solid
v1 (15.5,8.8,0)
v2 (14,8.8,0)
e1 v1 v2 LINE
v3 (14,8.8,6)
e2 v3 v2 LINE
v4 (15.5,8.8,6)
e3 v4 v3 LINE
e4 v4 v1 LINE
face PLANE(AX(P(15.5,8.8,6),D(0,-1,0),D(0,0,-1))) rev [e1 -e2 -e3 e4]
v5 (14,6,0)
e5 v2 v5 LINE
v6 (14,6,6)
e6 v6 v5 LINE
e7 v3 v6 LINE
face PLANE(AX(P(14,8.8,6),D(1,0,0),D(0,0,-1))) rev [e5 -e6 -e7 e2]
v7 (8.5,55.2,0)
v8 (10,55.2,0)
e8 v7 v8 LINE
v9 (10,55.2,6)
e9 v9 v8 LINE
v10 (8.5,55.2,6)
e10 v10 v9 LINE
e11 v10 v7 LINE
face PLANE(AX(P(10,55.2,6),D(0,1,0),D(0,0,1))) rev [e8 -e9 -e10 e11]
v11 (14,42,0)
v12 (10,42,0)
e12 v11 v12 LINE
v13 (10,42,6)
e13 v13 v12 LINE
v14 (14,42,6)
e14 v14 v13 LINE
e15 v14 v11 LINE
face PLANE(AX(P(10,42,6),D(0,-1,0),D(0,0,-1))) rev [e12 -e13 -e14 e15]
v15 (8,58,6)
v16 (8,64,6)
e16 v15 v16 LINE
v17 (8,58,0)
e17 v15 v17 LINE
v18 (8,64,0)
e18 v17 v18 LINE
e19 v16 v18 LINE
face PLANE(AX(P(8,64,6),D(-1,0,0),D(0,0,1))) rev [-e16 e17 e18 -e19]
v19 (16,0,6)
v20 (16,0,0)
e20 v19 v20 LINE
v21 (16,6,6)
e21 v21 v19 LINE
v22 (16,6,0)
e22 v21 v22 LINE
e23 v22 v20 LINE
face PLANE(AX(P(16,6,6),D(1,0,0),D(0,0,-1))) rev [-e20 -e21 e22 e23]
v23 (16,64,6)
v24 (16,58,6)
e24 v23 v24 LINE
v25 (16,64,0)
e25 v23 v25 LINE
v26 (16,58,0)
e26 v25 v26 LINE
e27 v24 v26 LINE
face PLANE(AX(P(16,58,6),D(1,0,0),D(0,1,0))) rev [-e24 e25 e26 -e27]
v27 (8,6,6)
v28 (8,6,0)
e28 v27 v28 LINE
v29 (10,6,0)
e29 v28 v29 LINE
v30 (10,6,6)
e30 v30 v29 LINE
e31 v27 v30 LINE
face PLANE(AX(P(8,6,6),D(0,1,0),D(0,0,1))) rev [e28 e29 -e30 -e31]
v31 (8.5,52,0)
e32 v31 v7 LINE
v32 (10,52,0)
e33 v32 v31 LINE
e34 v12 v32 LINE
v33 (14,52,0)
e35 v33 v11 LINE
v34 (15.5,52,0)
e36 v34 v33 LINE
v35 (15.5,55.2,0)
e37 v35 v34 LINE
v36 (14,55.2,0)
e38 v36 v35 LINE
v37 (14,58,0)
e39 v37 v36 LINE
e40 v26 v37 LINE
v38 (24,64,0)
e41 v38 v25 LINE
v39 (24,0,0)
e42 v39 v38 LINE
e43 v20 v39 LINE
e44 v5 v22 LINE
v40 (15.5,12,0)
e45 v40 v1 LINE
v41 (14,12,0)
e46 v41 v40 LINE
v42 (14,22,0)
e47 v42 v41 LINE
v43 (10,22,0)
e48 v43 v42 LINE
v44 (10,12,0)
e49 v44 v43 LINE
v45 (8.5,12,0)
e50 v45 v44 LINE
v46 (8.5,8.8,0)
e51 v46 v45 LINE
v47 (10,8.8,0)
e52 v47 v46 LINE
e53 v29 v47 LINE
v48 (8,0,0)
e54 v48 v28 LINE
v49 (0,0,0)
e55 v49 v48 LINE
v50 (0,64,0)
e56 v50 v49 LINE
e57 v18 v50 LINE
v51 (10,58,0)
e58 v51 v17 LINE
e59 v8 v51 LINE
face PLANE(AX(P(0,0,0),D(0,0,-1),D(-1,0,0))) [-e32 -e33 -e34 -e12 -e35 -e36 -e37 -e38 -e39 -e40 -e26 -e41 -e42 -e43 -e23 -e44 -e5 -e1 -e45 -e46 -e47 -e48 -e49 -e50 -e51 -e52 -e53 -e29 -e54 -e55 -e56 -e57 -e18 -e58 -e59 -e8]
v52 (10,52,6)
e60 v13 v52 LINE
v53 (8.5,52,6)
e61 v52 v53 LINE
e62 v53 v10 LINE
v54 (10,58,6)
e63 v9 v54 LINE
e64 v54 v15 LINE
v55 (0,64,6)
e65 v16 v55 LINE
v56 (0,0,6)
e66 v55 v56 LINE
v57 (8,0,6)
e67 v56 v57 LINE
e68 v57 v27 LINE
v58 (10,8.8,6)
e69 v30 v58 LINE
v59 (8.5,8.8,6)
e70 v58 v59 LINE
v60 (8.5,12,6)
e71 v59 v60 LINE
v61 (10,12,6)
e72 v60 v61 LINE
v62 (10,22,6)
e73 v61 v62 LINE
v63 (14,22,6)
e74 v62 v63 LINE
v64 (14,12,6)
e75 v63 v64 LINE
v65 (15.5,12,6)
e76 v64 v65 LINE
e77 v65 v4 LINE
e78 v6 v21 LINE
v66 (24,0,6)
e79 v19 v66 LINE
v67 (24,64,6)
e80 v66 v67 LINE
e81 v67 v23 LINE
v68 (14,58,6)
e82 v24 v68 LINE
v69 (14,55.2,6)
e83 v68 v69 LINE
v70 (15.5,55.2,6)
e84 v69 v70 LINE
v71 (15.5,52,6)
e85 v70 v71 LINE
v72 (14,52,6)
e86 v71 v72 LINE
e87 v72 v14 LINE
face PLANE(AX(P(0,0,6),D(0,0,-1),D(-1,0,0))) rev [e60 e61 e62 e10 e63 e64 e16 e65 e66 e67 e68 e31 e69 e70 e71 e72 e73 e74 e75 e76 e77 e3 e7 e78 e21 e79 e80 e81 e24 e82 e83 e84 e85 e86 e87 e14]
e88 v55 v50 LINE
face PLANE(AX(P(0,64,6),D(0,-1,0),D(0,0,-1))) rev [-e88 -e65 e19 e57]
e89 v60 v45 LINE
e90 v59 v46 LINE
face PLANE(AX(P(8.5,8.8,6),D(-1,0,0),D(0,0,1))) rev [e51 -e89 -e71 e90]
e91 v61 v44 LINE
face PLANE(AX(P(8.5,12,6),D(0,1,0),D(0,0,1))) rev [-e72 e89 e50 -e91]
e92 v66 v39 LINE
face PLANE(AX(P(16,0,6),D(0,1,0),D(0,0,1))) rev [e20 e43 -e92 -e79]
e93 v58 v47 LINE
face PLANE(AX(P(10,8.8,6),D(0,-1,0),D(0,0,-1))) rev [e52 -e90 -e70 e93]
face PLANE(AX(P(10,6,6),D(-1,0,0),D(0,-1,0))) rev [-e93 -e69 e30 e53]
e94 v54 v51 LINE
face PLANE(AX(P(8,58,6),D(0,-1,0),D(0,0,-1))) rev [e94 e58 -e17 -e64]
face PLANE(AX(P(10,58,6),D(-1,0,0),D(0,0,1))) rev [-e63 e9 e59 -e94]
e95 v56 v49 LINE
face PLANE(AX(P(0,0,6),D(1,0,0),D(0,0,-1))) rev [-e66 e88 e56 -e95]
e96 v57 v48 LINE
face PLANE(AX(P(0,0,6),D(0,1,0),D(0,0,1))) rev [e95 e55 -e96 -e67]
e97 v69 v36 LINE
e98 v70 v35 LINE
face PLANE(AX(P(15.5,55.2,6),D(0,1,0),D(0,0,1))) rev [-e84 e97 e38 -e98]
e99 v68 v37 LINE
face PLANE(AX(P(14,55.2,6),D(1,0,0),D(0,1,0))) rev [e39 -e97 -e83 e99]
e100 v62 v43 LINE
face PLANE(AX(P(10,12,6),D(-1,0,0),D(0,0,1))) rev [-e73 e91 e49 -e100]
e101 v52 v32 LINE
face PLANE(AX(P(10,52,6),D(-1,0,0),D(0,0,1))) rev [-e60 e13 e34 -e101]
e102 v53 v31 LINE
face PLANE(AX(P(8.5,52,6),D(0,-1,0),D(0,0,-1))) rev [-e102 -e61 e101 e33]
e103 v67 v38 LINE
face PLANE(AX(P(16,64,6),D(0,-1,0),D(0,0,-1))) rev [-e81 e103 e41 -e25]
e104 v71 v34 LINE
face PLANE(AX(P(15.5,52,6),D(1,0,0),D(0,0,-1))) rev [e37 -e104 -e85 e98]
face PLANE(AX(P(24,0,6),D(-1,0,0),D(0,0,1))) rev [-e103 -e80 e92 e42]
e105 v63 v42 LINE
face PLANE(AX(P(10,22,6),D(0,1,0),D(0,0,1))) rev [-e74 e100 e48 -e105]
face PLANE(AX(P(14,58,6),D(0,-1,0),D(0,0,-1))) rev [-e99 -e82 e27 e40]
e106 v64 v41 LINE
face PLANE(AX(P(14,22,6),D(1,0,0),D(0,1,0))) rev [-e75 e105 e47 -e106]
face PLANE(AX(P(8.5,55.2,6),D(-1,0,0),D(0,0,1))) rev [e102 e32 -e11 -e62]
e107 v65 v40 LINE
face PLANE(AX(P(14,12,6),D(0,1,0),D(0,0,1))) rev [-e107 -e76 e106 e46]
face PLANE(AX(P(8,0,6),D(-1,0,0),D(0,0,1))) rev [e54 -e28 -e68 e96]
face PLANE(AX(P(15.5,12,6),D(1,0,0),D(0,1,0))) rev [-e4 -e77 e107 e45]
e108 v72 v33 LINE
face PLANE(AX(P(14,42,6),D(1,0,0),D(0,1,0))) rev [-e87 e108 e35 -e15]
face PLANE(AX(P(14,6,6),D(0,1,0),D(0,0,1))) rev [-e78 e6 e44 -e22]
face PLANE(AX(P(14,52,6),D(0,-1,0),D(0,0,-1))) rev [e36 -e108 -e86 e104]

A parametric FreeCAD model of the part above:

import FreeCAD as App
import Part
import Sketcher
from FreeCAD import Vector
Q = App.Units.Quantity


def add_polygon(sketch, points):
    """Adds a closed chain of lines whose ends are joined by coincident constraints."""
    first, n = sketch.GeometryCount, len(points)
    for a, b in zip(points, points[1:] + points[:1]):
        sketch.addGeometry(Part.LineSegment(App.Vector(*a, 0), App.Vector(*b, 0)), False)
    for i in range(n):
        sketch.addConstraint(Sketcher.Constraint("Coincident", first + i, 2, first + (i + 1) % n, 1))

doc = App.newDocument("Part")
body = doc.addObject("PartDesign::Body", "Body")

sketch1 = doc.addObject("Sketcher::SketchObject", "Sketch")
body.addObject(sketch1)
sketch1.AttachmentSupport = (doc.XY_Plane, [""])
sketch1.MapMode = "FlatFace"
add_polygon(sketch1, [(8, 0), (8, 6), (10, 6), (10, 8.8), (8.5, 8.8), (8.5, 12), (10, 12), (10, 22), (14, 22), (14, 12), (15.5, 12), (15.5, 8.8), (14, 8.8), (14, 6), (16, 6), (16, 0), (24, 0), (24, 64), (16, 64), (16, 58), (14, 58), (14, 55.2), (15.5, 55.2), (15.5, 52), (14, 52), (14, 42), (10, 42), (10, 52), (8.5, 52), (8.5, 55.2), (10, 55.2), (10, 58), (8, 58), (8, 64), (0, 64), (0, 0)])
sketch1.addConstraint(Sketcher.Constraint("Vertical", 0))
sketch1.addConstraint(Sketcher.Constraint("Horizontal", 1))
sketch1.addConstraint(Sketcher.Constraint("Vertical", 2))
sketch1.addConstraint(Sketcher.Constraint("Horizontal", 3))
sketch1.addConstraint(Sketcher.Constraint("Vertical", 4))
sketch1.addConstraint(Sketcher.Constraint("Horizontal", 5))
sketch1.addConstraint(Sketcher.Constraint("Vertical", 6))
sketch1.addConstraint(Sketcher.Constraint("Horizontal", 7))
sketch1.addConstraint(Sketcher.Constraint("Vertical", 8))
sketch1.addConstraint(Sketcher.Constraint("Horizontal", 9))
sketch1.addConstraint(Sketcher.Constraint("Vertical", 10))
sketch1.addConstraint(Sketcher.Constraint("Horizontal", 11))
sketch1.addConstraint(Sketcher.Constraint("Vertical", 12))
sketch1.addConstraint(Sketcher.Constraint("Horizontal", 13))
sketch1.addConstraint(Sketcher.Constraint("Vertical", 14))
sketch1.addConstraint(Sketcher.Constraint("Horizontal", 15))
sketch1.addConstraint(Sketcher.Constraint("Vertical", 16))
sketch1.addConstraint(Sketcher.Constraint("Horizontal", 17))
sketch1.addConstraint(Sketcher.Constraint("Vertical", 18))
sketch1.addConstraint(Sketcher.Constraint("Horizontal", 19))
sketch1.addConstraint(Sketcher.Constraint("Vertical", 20))
sketch1.addConstraint(Sketcher.Constraint("Horizontal", 21))
sketch1.addConstraint(Sketcher.Constraint("Vertical", 22))
sketch1.addConstraint(Sketcher.Constraint("Horizontal", 23))
sketch1.addConstraint(Sketcher.Constraint("Vertical", 24))
sketch1.addConstraint(Sketcher.Constraint("Horizontal", 25))
sketch1.addConstraint(Sketcher.Constraint("Vertical", 26))
sketch1.addConstraint(Sketcher.Constraint("Horizontal", 27))
sketch1.addConstraint(Sketcher.Constraint("Vertical", 28))
sketch1.addConstraint(Sketcher.Constraint("Horizontal", 29))
sketch1.addConstraint(Sketcher.Constraint("Vertical", 30))
sketch1.addConstraint(Sketcher.Constraint("Horizontal", 31))
sketch1.addConstraint(Sketcher.Constraint("Vertical", 32))
sketch1.addConstraint(Sketcher.Constraint("Horizontal", 33))
sketch1.addConstraint(Sketcher.Constraint("Vertical", 34))
sketch1.addConstraint(Sketcher.Constraint("Horizontal", 35))
sketch1.addConstraint(Sketcher.Constraint("Coincident", 34, 2, -1, 1))
sketch1.addConstraint(Sketcher.Constraint("PointOnObject", 14, 2, -1))
sketch1.addConstraint(Sketcher.Constraint("Horizontal", 5, 2, 8, 2))
sketch1.addConstraint(Sketcher.Constraint("Horizontal", 3, 2, 10, 2))
sketch1.addConstraint(Sketcher.Constraint("Horizontal", 1, 2, 12, 2))
sketch1.addConstraint(Sketcher.Constraint("Horizontal", 23, 2, 26, 2))
sketch1.addConstraint(Sketcher.Constraint("Horizontal", 21, 2, 28, 2))
sketch1.addConstraint(Sketcher.Constraint("Horizontal", 19, 2, 30, 2))
sketch1.addConstraint(Sketcher.Constraint("Horizontal", 17, 2, 32, 2))
sketch1.addConstraint(Sketcher.Constraint("Vertical", 2, 2, 5, 2))
sketch1.addConstraint(Sketcher.Constraint("Vertical", 8, 2, 11, 2))
sketch1.addConstraint(Sketcher.Constraint("Vertical", 14, 2, 17, 2))
sketch1.addConstraint(Sketcher.Constraint("Vertical", 12, 2, 19, 2))
sketch1.addConstraint(Sketcher.Constraint("Vertical", 10, 2, 21, 2))
sketch1.addConstraint(Sketcher.Constraint("Vertical", 20, 2, 23, 2))
sketch1.addConstraint(Sketcher.Constraint("Vertical", 6, 2, 25, 2))
sketch1.addConstraint(Sketcher.Constraint("Vertical", 4, 2, 27, 2))
sketch1.addConstraint(Sketcher.Constraint("Vertical", 26, 2, 29, 2))
sketch1.addConstraint(Sketcher.Constraint("Vertical", 0, 2, 31, 2))
sketch1.addConstraint(Sketcher.Constraint("Equal", 5, 9))
sketch1.addConstraint(Sketcher.Constraint("Equal", 1, 13))
sketch1.addConstraint(Sketcher.Constraint("Equal", 17, 33))
sketch1.addConstraint(Sketcher.Constraint("Equal", 14, 18))
sketch1.addConstraint(Sketcher.Constraint("Equal", 12, 20))
sketch1.addConstraint(Sketcher.Constraint("Equal", 10, 22))
sketch1.addConstraint(Sketcher.Constraint("Equal", 8, 24))
sketch1.addConstraint(Sketcher.Constraint("DistanceX", 1, 1, 1, 2, Q("2 mm")))
sketch1.addConstraint(Sketcher.Constraint("DistanceX", 7, 1, 7, 2, Q("4 mm")))
sketch1.addConstraint(Sketcher.Constraint("DistanceX", 15, 1, 15, 2, Q("8 mm")))
sketch1.addConstraint(Sketcher.Constraint("DistanceY", 0, 1, 0, 2, Q("6 mm")))
sketch1.addConstraint(Sketcher.Constraint("DistanceY", 6, 1, 6, 2, Q("10 mm")))
sketch1.addConstraint(Sketcher.Constraint("DistanceY", 16, 1, 16, 2, Q("64 mm")))
sketch1.addConstraint(Sketcher.Constraint("DistanceX", 3, 2, 3, 1, Q("1.5 mm")))
sketch1.addConstraint(Sketcher.Constraint("DistanceY", 2, 1, 2, 2, Q("2.8 mm")))
sketch1.addConstraint(Sketcher.Constraint("DistanceY", 4, 1, 4, 2, Q("3.2 mm")))
pad1 = doc.addObject("PartDesign::Pad", "Pad")
body.addObject(pad1)
pad1.Profile = sketch1
pad1.Length = 6

doc.recompute()
